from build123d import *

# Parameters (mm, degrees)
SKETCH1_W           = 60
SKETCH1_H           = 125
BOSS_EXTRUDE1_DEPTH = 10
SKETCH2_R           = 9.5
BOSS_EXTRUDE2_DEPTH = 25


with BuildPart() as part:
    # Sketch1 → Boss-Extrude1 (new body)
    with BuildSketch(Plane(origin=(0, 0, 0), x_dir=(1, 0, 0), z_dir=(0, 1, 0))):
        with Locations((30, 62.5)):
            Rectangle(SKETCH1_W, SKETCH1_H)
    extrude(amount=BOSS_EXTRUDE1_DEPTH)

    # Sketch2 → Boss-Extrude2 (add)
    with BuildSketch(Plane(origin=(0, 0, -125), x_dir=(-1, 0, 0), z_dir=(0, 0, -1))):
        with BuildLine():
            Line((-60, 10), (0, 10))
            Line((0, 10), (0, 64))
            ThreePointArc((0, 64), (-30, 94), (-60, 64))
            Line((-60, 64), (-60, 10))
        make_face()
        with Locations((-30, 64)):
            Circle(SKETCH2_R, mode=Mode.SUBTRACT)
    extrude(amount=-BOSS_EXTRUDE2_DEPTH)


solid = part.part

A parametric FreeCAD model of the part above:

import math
import FreeCAD as App
import Part
import Sketcher


def add_polygon(sketch, points):
    """Adds a closed chain of lines whose ends are joined by coincident constraints."""
    first, n = sketch.GeometryCount, len(points)
    for a, b in zip(points, points[1:] + points[:1]):
        sketch.addGeometry(Part.LineSegment(App.Vector(*a, 0), App.Vector(*b, 0)), False)
    for i in range(n):
        sketch.addConstraint(Sketcher.Constraint("Coincident", first + i, 2, first + (i + 1) % n, 1))

doc = App.newDocument("Part")
body = doc.addObject("PartDesign::Body", "Body")

# Sketch on XZ plane
sketch1 = body.newObject("Sketcher::SketchObject", "Sketch")
sketch1.AttachmentSupport = (doc.getObject("XZ_Plane"), [""])
sketch1.MapMode = "FlatFace"
add_polygon(sketch1, [(0, -125), (0, 0), (60, 0), (60, -125)])  # lines 0-3
sketch1.addConstraint(Sketcher.Constraint("Vertical", 0))
sketch1.addConstraint(Sketcher.Constraint("Horizontal", 1))
sketch1.addConstraint(Sketcher.Constraint("Vertical", 2))
sketch1.addConstraint(Sketcher.Constraint("Horizontal", 3))
sketch1.addConstraint(Sketcher.Constraint("Coincident", 0, 2, -1, 1))
sketch1.addConstraint(Sketcher.Constraint("DistanceX", 1, 1, 1, 2, 60.0))
sketch1.addConstraint(Sketcher.Constraint("DistanceY", 0, 1, 0, 2, 125.0))
pad1 = body.newObject("PartDesign::Pad", "Pad")
pad1.Profile = sketch1
pad1.Length = 10
pad1.Reversed = True

# Sketch on XY plane
sketch2 = body.newObject("Sketcher::SketchObject", "Sketch001")
sketch2.AttachmentSupport = (doc.getObject("XY_Plane"), [""])
sketch2.MapMode = "FlatFace"
sketch2.AttachmentOffset = App.Placement(App.Vector(0, 0, -125), App.Rotation())
sketch2.addGeometry(Part.LineSegment(App.Vector(60, 10, 0), App.Vector(0, 10, 0)), False)
sketch2.addGeometry(Part.LineSegment(App.Vector(0, 10, 0), App.Vector(0, 64, 0)), False)
sketch2.addGeometry(Part.ArcOfCircle(Part.Circle(App.Vector(30, 64, 0), App.Vector(0, 0, 1), 30), math.radians(0), math.radians(180)), False)
sketch2.addGeometry(Part.LineSegment(App.Vector(60, 64, 0), App.Vector(60, 10, 0)), False)
sketch2.addGeometry(Part.Circle(App.Vector(30, 64, 0), App.Vector(0, 0, 1), 10), False)
sketch2.addConstraint(Sketcher.Constraint("Coincident", 0, 2, 1, 1))
sketch2.addConstraint(Sketcher.Constraint("Tangent", 1, 2, 2, 2))
sketch2.addConstraint(Sketcher.Constraint("Tangent", 2, 1, 3, 1))
sketch2.addConstraint(Sketcher.Constraint("Coincident", 3, 2, 0, 1))
sketch2.addConstraint(Sketcher.Constraint("Horizontal", 0))
sketch2.addConstraint(Sketcher.Constraint("Vertical", 1))
sketch2.addConstraint(Sketcher.Constraint("Vertical", 3))
sketch2.addConstraint(Sketcher.Constraint("Coincident", 4, 3, 2, 3))
sketch2.addConstraint(Sketcher.Constraint("PointOnObject", 0, 2, -2))
sketch2.addConstraint(Sketcher.Constraint("Diameter", 4, 19.0))
sketch2.addConstraint(Sketcher.Constraint("Radius", 2, 30.0))
sketch2.addConstraint(Sketcher.Constraint("DistanceY", 1, 1, 1, 2, 54.0))
sketch2.addConstraint(Sketcher.Constraint("DistanceY", -1, 1, 2, 3, 64.0))
pad2 = body.newObject("PartDesign::Pad", "Pad001")
pad2.Profile = sketch2
pad2.Length = 25

doc.recompute()
